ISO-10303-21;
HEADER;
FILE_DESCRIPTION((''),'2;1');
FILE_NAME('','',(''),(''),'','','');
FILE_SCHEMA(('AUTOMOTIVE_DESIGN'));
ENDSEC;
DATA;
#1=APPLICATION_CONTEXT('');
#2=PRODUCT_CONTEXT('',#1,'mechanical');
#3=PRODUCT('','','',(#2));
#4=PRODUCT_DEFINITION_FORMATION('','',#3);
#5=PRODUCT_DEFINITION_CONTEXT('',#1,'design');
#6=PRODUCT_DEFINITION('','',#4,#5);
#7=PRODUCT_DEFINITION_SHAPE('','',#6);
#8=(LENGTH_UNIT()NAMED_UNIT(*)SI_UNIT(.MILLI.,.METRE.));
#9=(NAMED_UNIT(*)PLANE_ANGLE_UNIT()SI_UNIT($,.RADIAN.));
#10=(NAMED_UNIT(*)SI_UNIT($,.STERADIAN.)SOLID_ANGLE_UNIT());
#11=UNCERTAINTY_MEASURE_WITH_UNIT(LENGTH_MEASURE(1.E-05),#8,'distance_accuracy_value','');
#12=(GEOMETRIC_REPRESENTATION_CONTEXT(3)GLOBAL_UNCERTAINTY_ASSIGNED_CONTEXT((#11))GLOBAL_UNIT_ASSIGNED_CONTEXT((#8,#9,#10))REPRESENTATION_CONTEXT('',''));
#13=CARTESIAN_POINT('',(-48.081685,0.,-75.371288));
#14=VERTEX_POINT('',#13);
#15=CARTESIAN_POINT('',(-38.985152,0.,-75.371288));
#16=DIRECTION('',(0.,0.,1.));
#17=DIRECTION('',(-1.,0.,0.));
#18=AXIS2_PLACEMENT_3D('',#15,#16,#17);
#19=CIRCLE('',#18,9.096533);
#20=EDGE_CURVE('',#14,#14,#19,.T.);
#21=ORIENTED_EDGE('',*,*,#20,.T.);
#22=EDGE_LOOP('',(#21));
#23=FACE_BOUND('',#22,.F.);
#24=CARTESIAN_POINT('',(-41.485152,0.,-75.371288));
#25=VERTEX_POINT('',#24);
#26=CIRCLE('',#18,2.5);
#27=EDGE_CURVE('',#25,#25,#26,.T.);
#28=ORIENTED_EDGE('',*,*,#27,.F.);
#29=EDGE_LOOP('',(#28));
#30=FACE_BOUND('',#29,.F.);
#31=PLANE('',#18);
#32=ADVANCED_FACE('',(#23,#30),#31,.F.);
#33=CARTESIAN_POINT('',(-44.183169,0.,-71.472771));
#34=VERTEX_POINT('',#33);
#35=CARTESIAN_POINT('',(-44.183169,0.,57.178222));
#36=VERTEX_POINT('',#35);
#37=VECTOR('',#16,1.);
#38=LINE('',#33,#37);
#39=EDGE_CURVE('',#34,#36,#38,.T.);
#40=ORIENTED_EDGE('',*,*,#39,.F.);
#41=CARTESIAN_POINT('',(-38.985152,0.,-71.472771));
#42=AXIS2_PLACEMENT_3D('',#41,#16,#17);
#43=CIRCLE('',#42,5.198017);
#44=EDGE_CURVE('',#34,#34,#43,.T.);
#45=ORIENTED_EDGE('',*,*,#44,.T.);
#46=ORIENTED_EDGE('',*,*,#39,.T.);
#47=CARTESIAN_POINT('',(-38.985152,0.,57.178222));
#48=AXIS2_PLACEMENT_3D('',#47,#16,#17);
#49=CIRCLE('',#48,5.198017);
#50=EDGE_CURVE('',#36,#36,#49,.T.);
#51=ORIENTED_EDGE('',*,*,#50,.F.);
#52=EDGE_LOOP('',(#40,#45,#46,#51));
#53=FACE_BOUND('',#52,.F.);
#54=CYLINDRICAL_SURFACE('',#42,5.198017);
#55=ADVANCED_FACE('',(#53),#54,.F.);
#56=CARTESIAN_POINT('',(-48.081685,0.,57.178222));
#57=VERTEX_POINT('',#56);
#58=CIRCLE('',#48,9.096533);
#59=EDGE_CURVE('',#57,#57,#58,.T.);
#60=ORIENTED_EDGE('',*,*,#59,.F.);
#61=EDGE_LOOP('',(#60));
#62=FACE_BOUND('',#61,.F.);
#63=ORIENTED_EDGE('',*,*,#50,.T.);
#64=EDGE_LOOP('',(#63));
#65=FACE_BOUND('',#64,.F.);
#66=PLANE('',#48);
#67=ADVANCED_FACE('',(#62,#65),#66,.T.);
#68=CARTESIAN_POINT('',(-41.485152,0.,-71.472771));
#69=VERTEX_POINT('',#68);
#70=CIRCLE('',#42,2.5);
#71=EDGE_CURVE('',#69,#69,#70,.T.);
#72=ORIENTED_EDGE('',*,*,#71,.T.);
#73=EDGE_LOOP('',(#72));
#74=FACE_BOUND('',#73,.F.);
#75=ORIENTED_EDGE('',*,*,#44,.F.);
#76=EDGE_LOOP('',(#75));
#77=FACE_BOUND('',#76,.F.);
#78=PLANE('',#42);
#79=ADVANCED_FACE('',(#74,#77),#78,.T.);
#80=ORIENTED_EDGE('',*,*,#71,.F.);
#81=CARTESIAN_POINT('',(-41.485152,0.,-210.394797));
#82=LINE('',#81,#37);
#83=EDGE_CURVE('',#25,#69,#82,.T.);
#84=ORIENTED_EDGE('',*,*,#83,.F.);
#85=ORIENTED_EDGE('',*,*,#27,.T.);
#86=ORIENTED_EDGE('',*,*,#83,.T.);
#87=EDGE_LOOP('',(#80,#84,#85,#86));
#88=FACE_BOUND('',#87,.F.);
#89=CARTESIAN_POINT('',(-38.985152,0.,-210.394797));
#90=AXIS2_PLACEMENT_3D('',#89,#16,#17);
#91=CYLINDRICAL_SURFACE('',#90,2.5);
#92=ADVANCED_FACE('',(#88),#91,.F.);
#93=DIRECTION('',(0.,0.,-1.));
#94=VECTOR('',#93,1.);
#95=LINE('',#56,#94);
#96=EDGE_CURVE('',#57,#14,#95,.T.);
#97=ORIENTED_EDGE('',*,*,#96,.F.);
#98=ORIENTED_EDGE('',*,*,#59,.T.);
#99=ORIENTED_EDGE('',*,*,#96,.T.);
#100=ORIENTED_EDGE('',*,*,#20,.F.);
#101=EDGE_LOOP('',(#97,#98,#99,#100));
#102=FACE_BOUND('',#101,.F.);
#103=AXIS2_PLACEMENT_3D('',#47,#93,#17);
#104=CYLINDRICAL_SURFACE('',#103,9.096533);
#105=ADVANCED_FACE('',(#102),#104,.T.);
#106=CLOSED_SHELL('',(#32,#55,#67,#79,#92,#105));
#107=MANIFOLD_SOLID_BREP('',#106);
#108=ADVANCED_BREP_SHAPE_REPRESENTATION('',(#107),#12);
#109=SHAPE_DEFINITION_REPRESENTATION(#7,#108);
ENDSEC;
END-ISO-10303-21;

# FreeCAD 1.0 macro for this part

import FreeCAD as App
import Part
import Sketcher

V = App.Vector

doc = App.newDocument("Part")
params = doc.addObject("Spreadsheet::Sheet", "Params")
for row, (alias, value) in enumerate([
    ("revolution_angle", "360 deg"),
    ("sketch2_diameter", "5 mm"),
    ("hole_diameter", "5 mm"),
], start=1):
    params.set(f"A{row}", alias)
    params.set(f"B{row}", "=" + value)
    params.setAlias(f"B{row}", alias)

body = doc.addObject("PartDesign::Body", "Body")

# Sketch on XZ plane
sketch1 = body.newObject("Sketcher::SketchObject", "Sketch")
sketch1.AttachmentSupport = (doc.getObject("XZ_Plane"), [""])
sketch1.MapMode = "FlatFace"
sketch1.addGeometry([
    Part.LineSegment(V(-44.2, 57.2, 0), V(-48.1, 57.2, 0)),  # 0
    Part.LineSegment(V(-48.1, 57.2, 0), V(-48.1, -75.4, 0)),  # 1
    Part.LineSegment(V(-48.1, -75.4, 0), V(-39, -75.4, 0)),  # 2
    Part.LineSegment(V(-39, -75.4, 0), V(-39, -71.5, 0)),  # 3
    Part.LineSegment(V(-39, -71.5, 0), V(-44.2, -71.5, 0)),  # 4
    Part.LineSegment(V(-44.2, -71.5, 0), V(-44.2, 57.2, 0)),  # 5
], False)
sketch1.addGeometry(Part.LineSegment(V(-39, -75.4, 0), V(-39, 57.2, 0)), True)  # axis
sketch1.addConstraint([
    Sketcher.Constraint("Coincident", 0, 2, 1, 1),
    Sketcher.Constraint("Coincident", 1, 2, 2, 1),
    Sketcher.Constraint("Coincident", 2, 2, 3, 1),
    Sketcher.Constraint("Coincident", 3, 2, 4, 1),
    Sketcher.Constraint("Coincident", 4, 2, 5, 1),
    Sketcher.Constraint("Coincident", 5, 2, 0, 1),
    Sketcher.Constraint("Horizontal", 0),
    Sketcher.Constraint("Vertical", 1),
    Sketcher.Constraint("Horizontal", 2),
    Sketcher.Constraint("Vertical", 3),
    Sketcher.Constraint("Horizontal", 4),
    Sketcher.Constraint("Vertical", 5),
    Sketcher.Constraint("Vertical", 6),
    Sketcher.Constraint("Coincident", 6, 1, 2, 2),
    Sketcher.Constraint("Horizontal", 5, 2, 6, 2),
    Sketcher.Constraint("Equal", 0, 3),
    Sketcher.Constraint("DistanceY", 1, 2, 1, 1, 132.54951),
    Sketcher.Constraint("DistanceX", 0, 2, 0, 1, 3.898516),
    Sketcher.Constraint("DistanceX", 2, 1, 2, 2, 9.096533),
    Sketcher.Constraint("DistanceY", -1, 1, 0, 2, 57.178222),
    Sketcher.Constraint("DistanceX", 4, 2, -1, 1, 44.183169),
])
revolution = body.newObject("PartDesign::Revolution", "Revolution")
revolution.Profile = sketch1
revolution.ReferenceAxis = (sketch1, ["Axis0"])
revolution.setExpression("Angle", "Params.revolution_angle")

# Sketch on XY plane
sketch2 = body.newObject("Sketcher::SketchObject", "Sketch001")
sketch2.AttachmentSupport = (doc.getObject("XY_Plane"), [""])
sketch2.MapMode = "FlatFace"
sketch2.AttachmentOffset = App.Placement(V(0, 0, -75.371288), App.Rotation())
sketch2.addGeometry(Part.Circle(V(-39, 0, 0), V(0, 0, 1), 2.5), False)
sketch2.addConstraint([
    Sketcher.Constraint("PointOnObject", 0, 3, -1),
    Sketcher.Constraint("Diameter", 0, 5.0),
    Sketcher.Constraint("DistanceX", 0, 3, -1, 1, 38.985152),
])
sketch2.setExpression("Constraints[1]", "Params.sketch2_diameter")
doc.recompute()
hole = body.newObject("PartDesign::Hole", "Hole")
hole.Profile = sketch2
hole.ThreadType = "None"
hole.setExpression("Diameter", "Params.hole_diameter")
hole.DepthType = "ThroughAll"
hole.Reversed = True

doc.recompute()
